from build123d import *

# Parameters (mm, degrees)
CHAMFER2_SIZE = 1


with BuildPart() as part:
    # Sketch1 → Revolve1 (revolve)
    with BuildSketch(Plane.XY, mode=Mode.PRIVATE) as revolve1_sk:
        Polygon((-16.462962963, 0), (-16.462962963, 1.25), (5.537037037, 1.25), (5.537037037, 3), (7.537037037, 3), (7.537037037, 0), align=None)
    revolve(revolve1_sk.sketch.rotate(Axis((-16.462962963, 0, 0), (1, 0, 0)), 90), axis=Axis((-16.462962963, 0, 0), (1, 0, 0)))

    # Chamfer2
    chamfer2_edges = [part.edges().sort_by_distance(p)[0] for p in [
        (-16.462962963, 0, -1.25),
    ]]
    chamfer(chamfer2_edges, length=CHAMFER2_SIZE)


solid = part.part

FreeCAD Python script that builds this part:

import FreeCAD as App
import Part
import Sketcher

V = App.Vector
Q = App.Units.Quantity


def edges_at(feature, points):
    """Names of the edges that pass closest to the given points."""
    edges = feature.Shape.Edges
    near = lambda p: min(range(len(edges)), key=lambda i: edges[i].distToShape(Part.Vertex(*p))[0])
    return sorted({f"Edge{near(p) + 1}" for p in points})


def add_polygon(sketch, points):
    """Adds a closed chain of lines whose ends are joined by coincident constraints."""
    first, n = sketch.GeometryCount, len(points)
    for a, b in zip(points, points[1:] + points[:1]):
        sketch.addGeometry(Part.LineSegment(App.Vector(*a, 0), App.Vector(*b, 0)), False)
    for i in range(n):
        sketch.addConstraint(Sketcher.Constraint("Coincident", first + i, 2, first + (i + 1) % n, 1))

doc = App.newDocument("Part")
body = doc.addObject("PartDesign::Body", "Body")

# Sketch on XY plane
sketch1 = body.newObject("Sketcher::SketchObject", "Sketch")
sketch1.AttachmentSupport = (doc.getObject("XY_Plane"), [""])
sketch1.MapMode = "FlatFace"
add_polygon(sketch1, [(-16.5, 1.2), (-16.5, 0), (7.5, 0), (7.5, 3), (5.5, 3), (5.5, 1.2)])  # lines 0-5
sketch1.addConstraint(Sketcher.Constraint("Vertical", 0))
sketch1.addConstraint(Sketcher.Constraint("Horizontal", 1))
sketch1.addConstraint(Sketcher.Constraint("Vertical", 2))
sketch1.addConstraint(Sketcher.Constraint("Horizontal", 3))
sketch1.addConstraint(Sketcher.Constraint("Vertical", 4))
sketch1.addConstraint(Sketcher.Constraint("Horizontal", 5))
sketch1.addConstraint(Sketcher.Constraint("PointOnObject", 0, 2, -1))
sketch1.addConstraint(Sketcher.Constraint("DistanceX", 1, 1, 1, 2, Q("24 mm")))
sketch1.addConstraint(Sketcher.Constraint("DistanceX", 3, 2, 3, 1, Q("2 mm")))
sketch1.addConstraint(Sketcher.Constraint("DistanceY", 2, 1, 2, 2, Q("3 mm")))
sketch1.addConstraint(Sketcher.Constraint("DistanceY", 0, 2, 0, 1, Q("1.25 mm")))
sketch1.addConstraint(Sketcher.Constraint("DistanceX", 0, 2, -1, 1, Q("16.462963 mm")))
revolution = body.newObject("PartDesign::Revolution", "Revolution")
revolution.Profile = sketch1
revolution.ReferenceAxis = (sketch1, ["H_Axis"])
revolution.Angle = 360
doc.recompute()

chamfer = body.newObject("PartDesign::Chamfer", "Chamfer")
chamfer.Base = (revolution, edges_at(revolution, [(-16.463, 0, -1.25)]))
chamfer.Size = 1

doc.recompute()
